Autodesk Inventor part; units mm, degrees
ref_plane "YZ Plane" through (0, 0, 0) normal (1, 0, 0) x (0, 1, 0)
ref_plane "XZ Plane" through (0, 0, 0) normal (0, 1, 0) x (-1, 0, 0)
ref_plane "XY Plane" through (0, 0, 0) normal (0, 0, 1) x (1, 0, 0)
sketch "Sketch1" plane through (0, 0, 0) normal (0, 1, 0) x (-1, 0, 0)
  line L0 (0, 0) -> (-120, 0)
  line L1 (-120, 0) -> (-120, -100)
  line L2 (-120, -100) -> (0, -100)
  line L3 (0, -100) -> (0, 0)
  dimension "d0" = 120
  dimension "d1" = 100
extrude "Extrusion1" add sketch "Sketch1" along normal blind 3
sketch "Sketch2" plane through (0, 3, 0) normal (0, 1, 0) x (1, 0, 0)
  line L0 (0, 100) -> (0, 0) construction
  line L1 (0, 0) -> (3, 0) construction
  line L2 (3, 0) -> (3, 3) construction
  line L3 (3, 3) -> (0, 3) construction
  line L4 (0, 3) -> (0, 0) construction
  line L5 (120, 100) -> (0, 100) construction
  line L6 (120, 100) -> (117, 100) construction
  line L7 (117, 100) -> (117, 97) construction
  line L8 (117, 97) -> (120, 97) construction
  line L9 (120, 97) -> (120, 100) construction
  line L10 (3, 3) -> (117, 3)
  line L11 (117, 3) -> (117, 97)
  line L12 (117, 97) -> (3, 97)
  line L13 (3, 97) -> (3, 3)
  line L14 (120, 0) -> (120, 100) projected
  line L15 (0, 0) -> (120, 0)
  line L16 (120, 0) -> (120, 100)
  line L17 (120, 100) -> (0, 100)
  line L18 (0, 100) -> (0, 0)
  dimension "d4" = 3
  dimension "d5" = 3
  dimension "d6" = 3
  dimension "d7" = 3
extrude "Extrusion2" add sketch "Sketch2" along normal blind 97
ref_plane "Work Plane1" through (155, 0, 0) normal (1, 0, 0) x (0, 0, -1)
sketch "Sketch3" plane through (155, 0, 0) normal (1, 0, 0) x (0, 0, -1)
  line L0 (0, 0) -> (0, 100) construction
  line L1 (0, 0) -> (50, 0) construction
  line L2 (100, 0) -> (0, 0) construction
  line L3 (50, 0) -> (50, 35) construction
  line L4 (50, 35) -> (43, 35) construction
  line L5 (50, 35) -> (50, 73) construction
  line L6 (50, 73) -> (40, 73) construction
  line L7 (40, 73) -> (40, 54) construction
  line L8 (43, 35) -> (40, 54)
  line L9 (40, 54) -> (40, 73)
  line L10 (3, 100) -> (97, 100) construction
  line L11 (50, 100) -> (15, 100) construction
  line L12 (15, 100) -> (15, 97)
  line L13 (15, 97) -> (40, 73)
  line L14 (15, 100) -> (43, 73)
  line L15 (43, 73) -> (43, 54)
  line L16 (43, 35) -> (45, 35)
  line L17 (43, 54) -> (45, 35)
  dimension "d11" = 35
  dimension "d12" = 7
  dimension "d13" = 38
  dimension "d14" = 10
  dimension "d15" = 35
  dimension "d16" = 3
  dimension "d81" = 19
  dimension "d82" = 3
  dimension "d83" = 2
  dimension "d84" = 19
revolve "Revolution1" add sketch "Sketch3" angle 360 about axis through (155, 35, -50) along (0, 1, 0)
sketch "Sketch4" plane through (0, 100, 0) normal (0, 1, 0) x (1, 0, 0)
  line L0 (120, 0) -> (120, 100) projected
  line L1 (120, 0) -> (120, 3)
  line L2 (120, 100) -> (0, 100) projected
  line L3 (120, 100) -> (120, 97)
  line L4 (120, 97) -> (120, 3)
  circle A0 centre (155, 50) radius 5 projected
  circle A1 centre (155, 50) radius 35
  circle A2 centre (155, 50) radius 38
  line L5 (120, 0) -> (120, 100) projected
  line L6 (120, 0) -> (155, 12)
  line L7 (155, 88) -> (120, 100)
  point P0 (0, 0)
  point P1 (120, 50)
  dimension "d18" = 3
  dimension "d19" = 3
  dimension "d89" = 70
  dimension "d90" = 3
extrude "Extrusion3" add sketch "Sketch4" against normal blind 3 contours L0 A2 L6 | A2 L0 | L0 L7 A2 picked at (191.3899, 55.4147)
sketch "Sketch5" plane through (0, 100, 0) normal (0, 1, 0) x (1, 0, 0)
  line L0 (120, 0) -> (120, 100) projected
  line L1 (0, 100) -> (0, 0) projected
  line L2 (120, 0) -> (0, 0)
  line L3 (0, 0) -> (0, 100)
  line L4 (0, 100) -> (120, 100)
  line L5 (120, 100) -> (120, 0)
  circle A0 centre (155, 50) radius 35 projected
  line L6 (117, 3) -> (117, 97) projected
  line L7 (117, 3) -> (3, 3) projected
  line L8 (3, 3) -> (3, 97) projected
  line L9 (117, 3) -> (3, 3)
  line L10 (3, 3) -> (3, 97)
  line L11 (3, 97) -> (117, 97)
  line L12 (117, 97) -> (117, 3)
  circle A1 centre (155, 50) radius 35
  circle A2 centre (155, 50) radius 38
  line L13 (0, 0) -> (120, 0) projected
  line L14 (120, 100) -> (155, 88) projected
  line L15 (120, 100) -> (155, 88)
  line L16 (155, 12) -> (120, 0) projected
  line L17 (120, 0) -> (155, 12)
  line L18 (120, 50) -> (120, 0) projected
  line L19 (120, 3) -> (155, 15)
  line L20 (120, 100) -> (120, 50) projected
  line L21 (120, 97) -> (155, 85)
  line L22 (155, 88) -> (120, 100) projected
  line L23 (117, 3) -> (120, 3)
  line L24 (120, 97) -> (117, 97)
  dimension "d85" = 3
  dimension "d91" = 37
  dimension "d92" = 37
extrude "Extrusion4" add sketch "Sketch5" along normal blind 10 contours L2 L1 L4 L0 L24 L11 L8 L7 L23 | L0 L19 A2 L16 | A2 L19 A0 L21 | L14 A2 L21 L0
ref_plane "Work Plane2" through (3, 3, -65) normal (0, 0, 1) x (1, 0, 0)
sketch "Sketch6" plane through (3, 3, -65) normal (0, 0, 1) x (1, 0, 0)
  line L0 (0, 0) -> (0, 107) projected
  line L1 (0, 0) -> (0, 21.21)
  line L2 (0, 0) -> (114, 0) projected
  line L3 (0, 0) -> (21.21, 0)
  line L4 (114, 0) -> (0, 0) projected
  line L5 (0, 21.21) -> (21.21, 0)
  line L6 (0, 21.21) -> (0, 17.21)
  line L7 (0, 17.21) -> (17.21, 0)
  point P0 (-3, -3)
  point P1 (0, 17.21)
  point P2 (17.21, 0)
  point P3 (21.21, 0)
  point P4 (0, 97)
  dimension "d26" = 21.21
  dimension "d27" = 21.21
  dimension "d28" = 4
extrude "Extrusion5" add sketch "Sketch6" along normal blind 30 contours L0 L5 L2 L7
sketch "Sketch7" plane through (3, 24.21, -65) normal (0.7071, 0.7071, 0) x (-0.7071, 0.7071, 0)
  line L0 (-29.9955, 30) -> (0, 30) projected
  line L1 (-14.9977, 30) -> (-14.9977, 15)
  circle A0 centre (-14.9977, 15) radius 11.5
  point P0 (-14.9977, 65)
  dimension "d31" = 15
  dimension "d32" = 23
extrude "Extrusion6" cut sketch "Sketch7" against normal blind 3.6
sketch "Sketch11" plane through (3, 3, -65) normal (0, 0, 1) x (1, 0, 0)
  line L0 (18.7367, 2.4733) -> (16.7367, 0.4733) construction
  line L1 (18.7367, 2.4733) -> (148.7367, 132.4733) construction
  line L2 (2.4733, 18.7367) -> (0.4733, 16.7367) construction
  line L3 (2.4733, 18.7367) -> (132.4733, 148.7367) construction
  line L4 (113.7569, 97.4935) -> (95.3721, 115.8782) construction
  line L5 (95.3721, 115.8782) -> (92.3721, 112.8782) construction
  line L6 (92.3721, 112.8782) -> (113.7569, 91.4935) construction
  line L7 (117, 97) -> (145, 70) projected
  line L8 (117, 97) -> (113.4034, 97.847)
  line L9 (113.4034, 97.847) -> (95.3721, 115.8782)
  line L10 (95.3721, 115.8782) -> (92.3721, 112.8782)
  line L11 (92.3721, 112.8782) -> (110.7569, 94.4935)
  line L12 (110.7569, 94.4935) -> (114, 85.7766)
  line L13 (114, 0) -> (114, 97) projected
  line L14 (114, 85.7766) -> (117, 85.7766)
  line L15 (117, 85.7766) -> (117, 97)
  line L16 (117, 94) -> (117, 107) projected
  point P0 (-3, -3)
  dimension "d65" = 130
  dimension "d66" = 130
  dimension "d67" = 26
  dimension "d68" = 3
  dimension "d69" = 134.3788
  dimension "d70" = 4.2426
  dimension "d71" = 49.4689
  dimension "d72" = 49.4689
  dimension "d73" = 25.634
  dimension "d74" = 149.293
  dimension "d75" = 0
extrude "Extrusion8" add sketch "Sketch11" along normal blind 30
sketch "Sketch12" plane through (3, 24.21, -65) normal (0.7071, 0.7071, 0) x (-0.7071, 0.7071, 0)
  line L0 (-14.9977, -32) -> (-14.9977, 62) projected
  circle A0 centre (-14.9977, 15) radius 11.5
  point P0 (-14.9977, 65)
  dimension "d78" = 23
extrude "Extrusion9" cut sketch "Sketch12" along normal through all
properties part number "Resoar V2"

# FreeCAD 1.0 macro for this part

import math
import FreeCAD as App
import Part
import Sketcher
from FreeCAD import Vector

doc = App.newDocument("Part")
body = doc.addObject("PartDesign::Body", "Body")
body.AllowCompound = True

sketch1 = body.newObject("Sketcher::SketchObject", "Sketch")
sketch1.AttachmentSupport = (doc.getObject("XZ_Plane"), [""])
sketch1.MapMode = "FlatFace"
sketch1.addGeometry([
    Part.LineSegment(Vector(0, -100, 0), Vector(0, 0, 0)),
    Part.LineSegment(Vector(0, 0, 0), Vector(120, 0, 0)),
    Part.LineSegment(Vector(120, 0, 0), Vector(120, -100, 0)),
    Part.LineSegment(Vector(120, -100, 0), Vector(0, -100, 0)),
], False)
sketch1.addConstraint([
    Sketcher.Constraint("Coincident", 0, 2, 1, 1),
    Sketcher.Constraint("Coincident", 1, 2, 2, 1),
    Sketcher.Constraint("Coincident", 2, 2, 3, 1),
    Sketcher.Constraint("Coincident", 3, 2, 0, 1),
    Sketcher.Constraint("Vertical", 0),
    Sketcher.Constraint("Horizontal", 1),
    Sketcher.Constraint("Vertical", 2),
    Sketcher.Constraint("Horizontal", 3),
    Sketcher.Constraint("Coincident", 0, 2, -1, 1),
    Sketcher.Constraint("DistanceX", 1, 1, 1, 2, 120.0),
    Sketcher.Constraint("DistanceY", 0, 1, 0, 2, 100.0),
])
pad1 = body.newObject("PartDesign::Pad", "Pad")
pad1.Profile = sketch1
pad1.Length = 3
pad1.Reversed = True

sketch2 = body.newObject("Sketcher::SketchObject", "Sketch001")
sketch2.AttachmentSupport = (doc.getObject("XZ_Plane"), [""])
sketch2.MapMode = "FlatFace"
sketch2.AttachmentOffset = App.Placement(Vector(0, 0, -3), App.Rotation())
sketch2.addGeometry([
    Part.LineSegment(Vector(0, 0, 0), Vector(120, 0, 0)),
    Part.LineSegment(Vector(120, 0, 0), Vector(120, -100, 0)),
    Part.LineSegment(Vector(120, -100, 0), Vector(0, -100, 0)),
    Part.LineSegment(Vector(0, -100, 0), Vector(0, 0, 0)),
    Part.LineSegment(Vector(117, -3, 0), Vector(3, -3, 0)),
    Part.LineSegment(Vector(3, -3, 0), Vector(3, -97, 0)),
    Part.LineSegment(Vector(3, -97, 0), Vector(117, -97, 0)),
    Part.LineSegment(Vector(117, -97, 0), Vector(117, -3, 0)),
], False)
sketch2.addConstraint([
    Sketcher.Constraint("Coincident", 0, 2, 1, 1),
    Sketcher.Constraint("Coincident", 1, 2, 2, 1),
    Sketcher.Constraint("Coincident", 2, 2, 3, 1),
    Sketcher.Constraint("Coincident", 3, 2, 0, 1),
    Sketcher.Constraint("Coincident", 4, 2, 5, 1),
    Sketcher.Constraint("Coincident", 5, 2, 6, 1),
    Sketcher.Constraint("Coincident", 6, 2, 7, 1),
    Sketcher.Constraint("Coincident", 7, 2, 4, 1),
    Sketcher.Constraint("Horizontal", 0),
    Sketcher.Constraint("Vertical", 1),
    Sketcher.Constraint("Horizontal", 2),
    Sketcher.Constraint("Vertical", 3),
    Sketcher.Constraint("Horizontal", 4),
    Sketcher.Constraint("Vertical", 5),
    Sketcher.Constraint("Horizontal", 6),
    Sketcher.Constraint("Vertical", 7),
    Sketcher.Constraint("Coincident", 3, 2, -1, 1),
    Sketcher.Constraint("DistanceX", -1, 1, 4, 2, 3.0),
    Sketcher.Constraint("DistanceY", 4, 2, -1, 1, 3.0),
    Sketcher.Constraint("DistanceY", 2, 2, 5, 2, 3.0),
    Sketcher.Constraint("DistanceX", 6, 2, 1, 2, 3.0),
    Sketcher.Constraint("DistanceX", 0, 1, 0, 2, 120.0),
    Sketcher.Constraint("DistanceY", 1, 2, 1, 1, 100.0),
])
pad2 = body.newObject("PartDesign::Pad", "Pad001")
pad2.Profile = sketch2
pad2.Length = 97
pad2.Reversed = True

sketch3 = body.newObject("Sketcher::SketchObject", "Sketch002")
sketch3.AttachmentSupport = (doc.getObject("YZ_Plane"), [""])
sketch3.MapMode = "FlatFace"
sketch3.AttachmentOffset = App.Placement(Vector(0, 0, 155), App.Rotation())
sketch3.addGeometry([
    Part.LineSegment(Vector(54, -40, 0), Vector(35, -43, 0)),
    Part.LineSegment(Vector(35, -43, 0), Vector(35, -45, 0)),
    Part.LineSegment(Vector(35, -45, 0), Vector(54, -43, 0)),
    Part.LineSegment(Vector(54, -43, 0), Vector(73, -43, 0)),
    Part.LineSegment(Vector(73, -43, 0), Vector(100, -15, 0)),
    Part.LineSegment(Vector(100, -15, 0), Vector(97, -15, 0)),
    Part.LineSegment(Vector(97, -15, 0), Vector(73, -40, 0)),
    Part.LineSegment(Vector(73, -40, 0), Vector(54, -40, 0)),
], False)
sketch3.addGeometry(Part.LineSegment(Vector(35, -50, 0), Vector(100, -50, 0)), True)
sketch3.addConstraint([
    Sketcher.Constraint("Coincident", 0, 2, 1, 1),
    Sketcher.Constraint("Coincident", 1, 2, 2, 1),
    Sketcher.Constraint("Coincident", 2, 2, 3, 1),
    Sketcher.Constraint("Coincident", 3, 2, 4, 1),
    Sketcher.Constraint("Coincident", 4, 2, 5, 1),
    Sketcher.Constraint("Coincident", 5, 2, 6, 1),
    Sketcher.Constraint("Coincident", 6, 2, 7, 1),
    Sketcher.Constraint("Coincident", 7, 2, 0, 1),
    Sketcher.Constraint("Vertical", 1),
    Sketcher.Constraint("Horizontal", 3),
    Sketcher.Constraint("Horizontal", 5),
    Sketcher.Constraint("Horizontal", 7),
    Sketcher.Constraint("Horizontal", 8),
    Sketcher.Constraint("Horizontal", 0, 2, 2, 2),
    Sketcher.Constraint("Vertical", 3, 2, 6, 2),
    Sketcher.Constraint("Vertical", 2, 2, 7, 2),
    Sketcher.Constraint("Vertical", 1, 2, 8, 1),
    Sketcher.Constraint("Vertical", 4, 2, 8, 2),
    Sketcher.Constraint("DistanceX", 3, 1, 3, 2, 19.0),
    Sketcher.Constraint("DistanceX", 5, 2, 5, 1, 3.0),
    Sketcher.Constraint("DistanceY", 1, 2, 1, 1, 2.0),
    Sketcher.Constraint("DistanceX", -1, 1, 0, 2, 35.0),
    Sketcher.Constraint("DistanceX", 0, 2, 2, 2, 19.0),
    Sketcher.Constraint("DistanceY", 3, 2, 6, 2, 3.0),
    Sketcher.Constraint("DistanceY", 8, 1, 0, 2, 7.0),
    Sketcher.Constraint("DistanceY", 8, 2, 4, 2, 35.0),
    Sketcher.Constraint("DistanceX", 8, 1, 8, 2, 65.0),
    Sketcher.Constraint("DistanceY", 0, 2, -1, 1, 43.0),
])
revolution = body.newObject("PartDesign::Revolution", "Revolution")
revolution.Profile = sketch3
revolution.ReferenceAxis = (sketch3, ["Axis0"])
revolution.Angle = 360

sketch4 = body.newObject("Sketcher::SketchObject", "Sketch003")
sketch4.AttachmentSupport = (doc.getObject("XZ_Plane"), [""])
sketch4.MapMode = "FlatFace"
sketch4.AttachmentOffset = App.Placement(Vector(0, 0, -100), App.Rotation())
sketch4.addGeometry([
    Part.LineSegment(Vector(120, -50, 0), Vector(120, 0, 0)),
    Part.LineSegment(Vector(120, 0, 0), Vector(155, -12, 0)),
    Part.ArcOfCircle(Part.Circle(Vector(155, -50, 0), Vector(0, 0, 1), 38), math.radians(-90), math.radians(90)),
    Part.LineSegment(Vector(155, -88, 0), Vector(120, -100, 0)),
    Part.LineSegment(Vector(120, -100, 0), Vector(120, -50, 0)),
    Part.Circle(Vector(155, -50, 0), Vector(0, 0, 1), 35),
], False)
sketch4.addConstraint([
    Sketcher.Constraint("Coincident", 0, 2, 1, 1),
    Sketcher.Constraint("Coincident", 1, 2, 2, 2),
    Sketcher.Constraint("Coincident", 2, 1, 3, 1),
    Sketcher.Constraint("Coincident", 3, 2, 4, 1),
    Sketcher.Constraint("Coincident", 4, 2, 0, 1),
    Sketcher.Constraint("Vertical", 0),
    Sketcher.Constraint("Vertical", 4),
    Sketcher.Constraint("Coincident", 5, 3, 2, 3),
    Sketcher.Constraint("PointOnObject", 0, 2, -1),
    Sketcher.Constraint("Horizontal", 5, 3, 4, 2),
    Sketcher.Constraint("Vertical", 5, 3, 1, 2),
    Sketcher.Constraint("Vertical", 1, 2, 2, 1),
    Sketcher.Constraint("Equal", 0, 4),
    Sketcher.Constraint("Diameter", 5, 70.0),
    Sketcher.Constraint("Radius", 2, 38.0),
    Sketcher.Constraint("DistanceY", 0, 1, 0, 2, 50.0),
    Sketcher.Constraint("Distance", 1, 37.0),
    Sketcher.Constraint("DistanceX", -1, 1, 2, 3, 155.0),
])
pad3 = body.newObject("PartDesign::Pad", "Pad002")
pad3.Profile = sketch4
pad3.Length = 3

sketch5 = body.newObject("Sketcher::SketchObject", "Sketch004")
sketch5.AttachmentSupport = (doc.getObject("XZ_Plane"), [""])
sketch5.MapMode = "FlatFace"
sketch5.AttachmentOffset = App.Placement(Vector(0, 0, -100), App.Rotation())
sketch5.addGeometry([
    Part.LineSegment(Vector(0, 0, 0), Vector(120, 0, 0)),
    Part.LineSegment(Vector(120, 0, 0), Vector(155, -12, 0)),
    Part.ArcOfCircle(Part.Circle(Vector(155, -50, 0), Vector(0, 0, 1), 38), math.radians(-90), math.radians(90)),
    Part.LineSegment(Vector(155, -88, 0), Vector(120, -100, 0)),
    Part.LineSegment(Vector(120, -100, 0), Vector(0, -100, 0)),
    Part.LineSegment(Vector(0, -100, 0), Vector(0, 0, 0)),
    Part.LineSegment(Vector(120, -97, 0), Vector(155, -85, 0)),
    Part.ArcOfCircle(Part.Circle(Vector(155, -50, 0), Vector(0, 0, 1), 35), math.radians(-90), math.radians(90)),
    Part.LineSegment(Vector(155, -15, 0), Vector(120, -3, 0)),
    Part.LineSegment(Vector(120, -3, 0), Vector(3, -3, 0)),
    Part.LineSegment(Vector(3, -3, 0), Vector(3, -97, 0)),
    Part.LineSegment(Vector(3, -97, 0), Vector(120, -97, 0)),
], False)
sketch5.addConstraint([
    Sketcher.Constraint("Coincident", 0, 2, 1, 1),
    Sketcher.Constraint("Coincident", 1, 2, 2, 2),
    Sketcher.Constraint("Coincident", 2, 1, 3, 1),
    Sketcher.Constraint("Coincident", 3, 2, 4, 1),
    Sketcher.Constraint("Coincident", 4, 2, 5, 1),
    Sketcher.Constraint("Coincident", 5, 2, 0, 1),
    Sketcher.Constraint("Coincident", 6, 2, 7, 1),
    Sketcher.Constraint("Coincident", 7, 2, 8, 1),
    Sketcher.Constraint("Coincident", 8, 2, 9, 1),
    Sketcher.Constraint("Coincident", 9, 2, 10, 1),
    Sketcher.Constraint("Coincident", 10, 2, 11, 1),
    Sketcher.Constraint("Coincident", 11, 2, 6, 1),
    Sketcher.Constraint("Horizontal", 0),
    Sketcher.Constraint("Horizontal", 4),
    Sketcher.Constraint("Vertical", 5),
    Sketcher.Constraint("Horizontal", 9),
    Sketcher.Constraint("Vertical", 10),
    Sketcher.Constraint("Horizontal", 11),
    Sketcher.Constraint("Coincident", 5, 2, -1, 1),
    Sketcher.Constraint("Coincident", 7, 3, 2, 3),
    Sketcher.Constraint("Parallel", 3, 6),
    Sketcher.Constraint("Parallel", 1, 8),
    Sketcher.Constraint("Vertical", 7, 3, 1, 2),
    Sketcher.Constraint("Vertical", 1, 2, 2, 1),
    Sketcher.Constraint("Vertical", 0, 2, 3, 2),
    Sketcher.Constraint("Vertical", 2, 1, 6, 2),
    Sketcher.Constraint("Vertical", 6, 2, 7, 2),
    Sketcher.Constraint("Vertical", 3, 2, 8, 2),
    Sketcher.Constraint("Vertical", 8, 2, 11, 2),
    Sketcher.Constraint("Equal", 1, 3),
    Sketcher.Constraint("Distance", 1, 37.0),
    Sketcher.Constraint("DistanceY", 8, 2, -1, 1, 3.0),
    Sketcher.Constraint("DistanceX", -1, 1, 9, 2, 3.0),
    Sketcher.Constraint("Radius", 2, 38.0),
    Sketcher.Constraint("DistanceX", 0, 1, 0, 2, 120.0),
    Sketcher.Constraint("DistanceY", 5, 1, 5, 2, 100.0),
])
pad4 = body.newObject("PartDesign::Pad", "Pad003")
pad4.Profile = sketch5
pad4.Length = 10
pad4.Reversed = True

sketch6 = body.newObject("Sketcher::SketchObject", "Sketch005")
sketch6.AttachmentSupport = (doc.getObject("XY_Plane"), [""])
sketch6.MapMode = "FlatFace"
sketch6.AttachmentOffset = App.Placement(Vector(0, 0, -65), App.Rotation())
sketch6.addGeometry([
    Part.LineSegment(Vector(3, 24.2, 0), Vector(3, 20.2, 0)),
    Part.LineSegment(Vector(3, 20.2, 0), Vector(20.2, 3, 0)),
    Part.LineSegment(Vector(20.2, 3, 0), Vector(24.2, 3, 0)),
    Part.LineSegment(Vector(24.2, 3, 0), Vector(3, 24.2, 0)),
], False)
sketch6.addConstraint([
    Sketcher.Constraint("Coincident", 0, 2, 1, 1),
    Sketcher.Constraint("Coincident", 1, 2, 2, 1),
    Sketcher.Constraint("Coincident", 2, 2, 3, 1),
    Sketcher.Constraint("Coincident", 3, 2, 0, 1),
    Sketcher.Constraint("Vertical", 0),
    Sketcher.Constraint("Horizontal", 2),
    Sketcher.Constraint("Parallel", 1, 3),
    Sketcher.Constraint("Equal", 2, 0),
    Sketcher.Constraint("DistanceX", 2, 1, 2, 2, 4.0),
    Sketcher.Constraint("DistanceX", 0, 2, 2, 2, 21.21),
    Sketcher.Constraint("DistanceX", -1, 1, 0, 2, 3.0),
    Sketcher.Constraint("DistanceY", -1, 1, 1, 2, 3.0),
])
pad5 = body.newObject("PartDesign::Pad", "Pad004")
pad5.Profile = sketch6
pad5.Length = 30

sketch7 = body.newObject("Sketcher::SketchObject", "Sketch006")
sketch7.Placement = App.Placement(Vector(3, 24.21, -65), App.Rotation(Vector(-0.707106781, 0.707106781, 0), Vector(0, 0, 0.999999999), Vector(0.707106781, 0.707106781, 0), "ZXY"))
sketch7.addGeometry(Part.Circle(Vector(-15, 15, 0), Vector(0, 0, 1), 12), False)
sketch7.addConstraint([
    Sketcher.Constraint("Diameter", 0, 23.0),
    Sketcher.Constraint("DistanceY", -1, 1, 0, 3, 15.0),
    Sketcher.Constraint("DistanceX", 0, 3, -1, 1, 14.9977),
])
pocket1 = body.newObject("PartDesign::Pocket", "Pocket")
pocket1.Profile = sketch7
pocket1.Length = 3.6

sketch8 = body.newObject("Sketcher::SketchObject", "Sketch007")
sketch8.AttachmentSupport = (doc.getObject("XY_Plane"), [""])
sketch8.MapMode = "FlatFace"
sketch8.AttachmentOffset = App.Placement(Vector(0, 0, -65), App.Rotation())
sketch8.addGeometry([
    Part.LineSegment(Vector(120, 88.8, 0), Vector(120, 100, 0)),
    Part.LineSegment(Vector(120, 100, 0), Vector(116.4, 100.8, 0)),
    Part.LineSegment(Vector(116.4, 100.8, 0), Vector(98.4, 118.9, 0)),
    Part.LineSegment(Vector(98.4, 118.9, 0), Vector(95.4, 115.9, 0)),
    Part.LineSegment(Vector(95.4, 115.9, 0), Vector(113.8, 97.5, 0)),
    Part.LineSegment(Vector(113.8, 97.5, 0), Vector(117, 88.8, 0)),
    Part.LineSegment(Vector(117, 88.8, 0), Vector(120, 88.8, 0)),
], False)
sketch8.addConstraint([
    Sketcher.Constraint("Coincident", 0, 2, 1, 1),
    Sketcher.Constraint("Coincident", 1, 2, 2, 1),
    Sketcher.Constraint("Coincident", 2, 2, 3, 1),
    Sketcher.Constraint("Coincident", 3, 2, 4, 1),
    Sketcher.Constraint("Coincident", 4, 2, 5, 1),
    Sketcher.Constraint("Coincident", 5, 2, 6, 1),
    Sketcher.Constraint("Coincident", 6, 2, 0, 1),
    Sketcher.Constraint("Vertical", 0),
    Sketcher.Constraint("Horizontal", 6),
    Sketcher.Constraint("Perpendicular", 2, 3),
    Sketcher.Constraint("Perpendicular", 3, 4),
    Sketcher.Constraint("DistanceX", 6, 1, 6, 2, 3.0),
    Sketcher.Constraint("Distance", 4, 26.0),
    Sketcher.Constraint("DistanceX", 3, 2, 2, 2, 3.0),
    Sketcher.Constraint("DistanceY", 3, 2, 2, 2, 3.0),
    Sketcher.Constraint("DistanceX", -1, 1, 0, 2, 120.0),
    Sketcher.Constraint("DistanceY", -1, 1, 0, 2, 100.0),
    Sketcher.Constraint("Distance", 2, 25.5),
    Sketcher.Constraint("Distance", 1, 3.695),
    Sketcher.Constraint("DistanceY", 0, 1, 0, 2, 11.2234),
    Sketcher.Constraint("DistanceY", -1, 1, 1, 2, 100.847),
])
pad6 = body.newObject("PartDesign::Pad", "Pad005")
pad6.Profile = sketch8
pad6.Length = 30

sketch9 = body.newObject("Sketcher::SketchObject", "Sketch008")
sketch9.Placement = App.Placement(Vector(3, 24.21, -65), App.Rotation(Vector(-0.707106781, 0.707106781, 0), Vector(0, 0, 0.999999999), Vector(0.707106781, 0.707106781, 0), "ZXY"))
sketch9.addGeometry(Part.Circle(Vector(-15, 15, 0), Vector(0, 0, 1), 12), False)
sketch9.addConstraint([
    Sketcher.Constraint("Diameter", 0, 23.0),
    Sketcher.Constraint("DistanceY", -1, 1, 0, 3, 15.0),
    Sketcher.Constraint("DistanceX", 0, 3, -1, 1, 14.9977),
])
pocket2 = body.newObject("PartDesign::Pocket", "Pocket001")
pocket2.Profile = sketch9
pocket2.Type = "ThroughAll"
pocket2.Reversed = True

doc.recompute()
